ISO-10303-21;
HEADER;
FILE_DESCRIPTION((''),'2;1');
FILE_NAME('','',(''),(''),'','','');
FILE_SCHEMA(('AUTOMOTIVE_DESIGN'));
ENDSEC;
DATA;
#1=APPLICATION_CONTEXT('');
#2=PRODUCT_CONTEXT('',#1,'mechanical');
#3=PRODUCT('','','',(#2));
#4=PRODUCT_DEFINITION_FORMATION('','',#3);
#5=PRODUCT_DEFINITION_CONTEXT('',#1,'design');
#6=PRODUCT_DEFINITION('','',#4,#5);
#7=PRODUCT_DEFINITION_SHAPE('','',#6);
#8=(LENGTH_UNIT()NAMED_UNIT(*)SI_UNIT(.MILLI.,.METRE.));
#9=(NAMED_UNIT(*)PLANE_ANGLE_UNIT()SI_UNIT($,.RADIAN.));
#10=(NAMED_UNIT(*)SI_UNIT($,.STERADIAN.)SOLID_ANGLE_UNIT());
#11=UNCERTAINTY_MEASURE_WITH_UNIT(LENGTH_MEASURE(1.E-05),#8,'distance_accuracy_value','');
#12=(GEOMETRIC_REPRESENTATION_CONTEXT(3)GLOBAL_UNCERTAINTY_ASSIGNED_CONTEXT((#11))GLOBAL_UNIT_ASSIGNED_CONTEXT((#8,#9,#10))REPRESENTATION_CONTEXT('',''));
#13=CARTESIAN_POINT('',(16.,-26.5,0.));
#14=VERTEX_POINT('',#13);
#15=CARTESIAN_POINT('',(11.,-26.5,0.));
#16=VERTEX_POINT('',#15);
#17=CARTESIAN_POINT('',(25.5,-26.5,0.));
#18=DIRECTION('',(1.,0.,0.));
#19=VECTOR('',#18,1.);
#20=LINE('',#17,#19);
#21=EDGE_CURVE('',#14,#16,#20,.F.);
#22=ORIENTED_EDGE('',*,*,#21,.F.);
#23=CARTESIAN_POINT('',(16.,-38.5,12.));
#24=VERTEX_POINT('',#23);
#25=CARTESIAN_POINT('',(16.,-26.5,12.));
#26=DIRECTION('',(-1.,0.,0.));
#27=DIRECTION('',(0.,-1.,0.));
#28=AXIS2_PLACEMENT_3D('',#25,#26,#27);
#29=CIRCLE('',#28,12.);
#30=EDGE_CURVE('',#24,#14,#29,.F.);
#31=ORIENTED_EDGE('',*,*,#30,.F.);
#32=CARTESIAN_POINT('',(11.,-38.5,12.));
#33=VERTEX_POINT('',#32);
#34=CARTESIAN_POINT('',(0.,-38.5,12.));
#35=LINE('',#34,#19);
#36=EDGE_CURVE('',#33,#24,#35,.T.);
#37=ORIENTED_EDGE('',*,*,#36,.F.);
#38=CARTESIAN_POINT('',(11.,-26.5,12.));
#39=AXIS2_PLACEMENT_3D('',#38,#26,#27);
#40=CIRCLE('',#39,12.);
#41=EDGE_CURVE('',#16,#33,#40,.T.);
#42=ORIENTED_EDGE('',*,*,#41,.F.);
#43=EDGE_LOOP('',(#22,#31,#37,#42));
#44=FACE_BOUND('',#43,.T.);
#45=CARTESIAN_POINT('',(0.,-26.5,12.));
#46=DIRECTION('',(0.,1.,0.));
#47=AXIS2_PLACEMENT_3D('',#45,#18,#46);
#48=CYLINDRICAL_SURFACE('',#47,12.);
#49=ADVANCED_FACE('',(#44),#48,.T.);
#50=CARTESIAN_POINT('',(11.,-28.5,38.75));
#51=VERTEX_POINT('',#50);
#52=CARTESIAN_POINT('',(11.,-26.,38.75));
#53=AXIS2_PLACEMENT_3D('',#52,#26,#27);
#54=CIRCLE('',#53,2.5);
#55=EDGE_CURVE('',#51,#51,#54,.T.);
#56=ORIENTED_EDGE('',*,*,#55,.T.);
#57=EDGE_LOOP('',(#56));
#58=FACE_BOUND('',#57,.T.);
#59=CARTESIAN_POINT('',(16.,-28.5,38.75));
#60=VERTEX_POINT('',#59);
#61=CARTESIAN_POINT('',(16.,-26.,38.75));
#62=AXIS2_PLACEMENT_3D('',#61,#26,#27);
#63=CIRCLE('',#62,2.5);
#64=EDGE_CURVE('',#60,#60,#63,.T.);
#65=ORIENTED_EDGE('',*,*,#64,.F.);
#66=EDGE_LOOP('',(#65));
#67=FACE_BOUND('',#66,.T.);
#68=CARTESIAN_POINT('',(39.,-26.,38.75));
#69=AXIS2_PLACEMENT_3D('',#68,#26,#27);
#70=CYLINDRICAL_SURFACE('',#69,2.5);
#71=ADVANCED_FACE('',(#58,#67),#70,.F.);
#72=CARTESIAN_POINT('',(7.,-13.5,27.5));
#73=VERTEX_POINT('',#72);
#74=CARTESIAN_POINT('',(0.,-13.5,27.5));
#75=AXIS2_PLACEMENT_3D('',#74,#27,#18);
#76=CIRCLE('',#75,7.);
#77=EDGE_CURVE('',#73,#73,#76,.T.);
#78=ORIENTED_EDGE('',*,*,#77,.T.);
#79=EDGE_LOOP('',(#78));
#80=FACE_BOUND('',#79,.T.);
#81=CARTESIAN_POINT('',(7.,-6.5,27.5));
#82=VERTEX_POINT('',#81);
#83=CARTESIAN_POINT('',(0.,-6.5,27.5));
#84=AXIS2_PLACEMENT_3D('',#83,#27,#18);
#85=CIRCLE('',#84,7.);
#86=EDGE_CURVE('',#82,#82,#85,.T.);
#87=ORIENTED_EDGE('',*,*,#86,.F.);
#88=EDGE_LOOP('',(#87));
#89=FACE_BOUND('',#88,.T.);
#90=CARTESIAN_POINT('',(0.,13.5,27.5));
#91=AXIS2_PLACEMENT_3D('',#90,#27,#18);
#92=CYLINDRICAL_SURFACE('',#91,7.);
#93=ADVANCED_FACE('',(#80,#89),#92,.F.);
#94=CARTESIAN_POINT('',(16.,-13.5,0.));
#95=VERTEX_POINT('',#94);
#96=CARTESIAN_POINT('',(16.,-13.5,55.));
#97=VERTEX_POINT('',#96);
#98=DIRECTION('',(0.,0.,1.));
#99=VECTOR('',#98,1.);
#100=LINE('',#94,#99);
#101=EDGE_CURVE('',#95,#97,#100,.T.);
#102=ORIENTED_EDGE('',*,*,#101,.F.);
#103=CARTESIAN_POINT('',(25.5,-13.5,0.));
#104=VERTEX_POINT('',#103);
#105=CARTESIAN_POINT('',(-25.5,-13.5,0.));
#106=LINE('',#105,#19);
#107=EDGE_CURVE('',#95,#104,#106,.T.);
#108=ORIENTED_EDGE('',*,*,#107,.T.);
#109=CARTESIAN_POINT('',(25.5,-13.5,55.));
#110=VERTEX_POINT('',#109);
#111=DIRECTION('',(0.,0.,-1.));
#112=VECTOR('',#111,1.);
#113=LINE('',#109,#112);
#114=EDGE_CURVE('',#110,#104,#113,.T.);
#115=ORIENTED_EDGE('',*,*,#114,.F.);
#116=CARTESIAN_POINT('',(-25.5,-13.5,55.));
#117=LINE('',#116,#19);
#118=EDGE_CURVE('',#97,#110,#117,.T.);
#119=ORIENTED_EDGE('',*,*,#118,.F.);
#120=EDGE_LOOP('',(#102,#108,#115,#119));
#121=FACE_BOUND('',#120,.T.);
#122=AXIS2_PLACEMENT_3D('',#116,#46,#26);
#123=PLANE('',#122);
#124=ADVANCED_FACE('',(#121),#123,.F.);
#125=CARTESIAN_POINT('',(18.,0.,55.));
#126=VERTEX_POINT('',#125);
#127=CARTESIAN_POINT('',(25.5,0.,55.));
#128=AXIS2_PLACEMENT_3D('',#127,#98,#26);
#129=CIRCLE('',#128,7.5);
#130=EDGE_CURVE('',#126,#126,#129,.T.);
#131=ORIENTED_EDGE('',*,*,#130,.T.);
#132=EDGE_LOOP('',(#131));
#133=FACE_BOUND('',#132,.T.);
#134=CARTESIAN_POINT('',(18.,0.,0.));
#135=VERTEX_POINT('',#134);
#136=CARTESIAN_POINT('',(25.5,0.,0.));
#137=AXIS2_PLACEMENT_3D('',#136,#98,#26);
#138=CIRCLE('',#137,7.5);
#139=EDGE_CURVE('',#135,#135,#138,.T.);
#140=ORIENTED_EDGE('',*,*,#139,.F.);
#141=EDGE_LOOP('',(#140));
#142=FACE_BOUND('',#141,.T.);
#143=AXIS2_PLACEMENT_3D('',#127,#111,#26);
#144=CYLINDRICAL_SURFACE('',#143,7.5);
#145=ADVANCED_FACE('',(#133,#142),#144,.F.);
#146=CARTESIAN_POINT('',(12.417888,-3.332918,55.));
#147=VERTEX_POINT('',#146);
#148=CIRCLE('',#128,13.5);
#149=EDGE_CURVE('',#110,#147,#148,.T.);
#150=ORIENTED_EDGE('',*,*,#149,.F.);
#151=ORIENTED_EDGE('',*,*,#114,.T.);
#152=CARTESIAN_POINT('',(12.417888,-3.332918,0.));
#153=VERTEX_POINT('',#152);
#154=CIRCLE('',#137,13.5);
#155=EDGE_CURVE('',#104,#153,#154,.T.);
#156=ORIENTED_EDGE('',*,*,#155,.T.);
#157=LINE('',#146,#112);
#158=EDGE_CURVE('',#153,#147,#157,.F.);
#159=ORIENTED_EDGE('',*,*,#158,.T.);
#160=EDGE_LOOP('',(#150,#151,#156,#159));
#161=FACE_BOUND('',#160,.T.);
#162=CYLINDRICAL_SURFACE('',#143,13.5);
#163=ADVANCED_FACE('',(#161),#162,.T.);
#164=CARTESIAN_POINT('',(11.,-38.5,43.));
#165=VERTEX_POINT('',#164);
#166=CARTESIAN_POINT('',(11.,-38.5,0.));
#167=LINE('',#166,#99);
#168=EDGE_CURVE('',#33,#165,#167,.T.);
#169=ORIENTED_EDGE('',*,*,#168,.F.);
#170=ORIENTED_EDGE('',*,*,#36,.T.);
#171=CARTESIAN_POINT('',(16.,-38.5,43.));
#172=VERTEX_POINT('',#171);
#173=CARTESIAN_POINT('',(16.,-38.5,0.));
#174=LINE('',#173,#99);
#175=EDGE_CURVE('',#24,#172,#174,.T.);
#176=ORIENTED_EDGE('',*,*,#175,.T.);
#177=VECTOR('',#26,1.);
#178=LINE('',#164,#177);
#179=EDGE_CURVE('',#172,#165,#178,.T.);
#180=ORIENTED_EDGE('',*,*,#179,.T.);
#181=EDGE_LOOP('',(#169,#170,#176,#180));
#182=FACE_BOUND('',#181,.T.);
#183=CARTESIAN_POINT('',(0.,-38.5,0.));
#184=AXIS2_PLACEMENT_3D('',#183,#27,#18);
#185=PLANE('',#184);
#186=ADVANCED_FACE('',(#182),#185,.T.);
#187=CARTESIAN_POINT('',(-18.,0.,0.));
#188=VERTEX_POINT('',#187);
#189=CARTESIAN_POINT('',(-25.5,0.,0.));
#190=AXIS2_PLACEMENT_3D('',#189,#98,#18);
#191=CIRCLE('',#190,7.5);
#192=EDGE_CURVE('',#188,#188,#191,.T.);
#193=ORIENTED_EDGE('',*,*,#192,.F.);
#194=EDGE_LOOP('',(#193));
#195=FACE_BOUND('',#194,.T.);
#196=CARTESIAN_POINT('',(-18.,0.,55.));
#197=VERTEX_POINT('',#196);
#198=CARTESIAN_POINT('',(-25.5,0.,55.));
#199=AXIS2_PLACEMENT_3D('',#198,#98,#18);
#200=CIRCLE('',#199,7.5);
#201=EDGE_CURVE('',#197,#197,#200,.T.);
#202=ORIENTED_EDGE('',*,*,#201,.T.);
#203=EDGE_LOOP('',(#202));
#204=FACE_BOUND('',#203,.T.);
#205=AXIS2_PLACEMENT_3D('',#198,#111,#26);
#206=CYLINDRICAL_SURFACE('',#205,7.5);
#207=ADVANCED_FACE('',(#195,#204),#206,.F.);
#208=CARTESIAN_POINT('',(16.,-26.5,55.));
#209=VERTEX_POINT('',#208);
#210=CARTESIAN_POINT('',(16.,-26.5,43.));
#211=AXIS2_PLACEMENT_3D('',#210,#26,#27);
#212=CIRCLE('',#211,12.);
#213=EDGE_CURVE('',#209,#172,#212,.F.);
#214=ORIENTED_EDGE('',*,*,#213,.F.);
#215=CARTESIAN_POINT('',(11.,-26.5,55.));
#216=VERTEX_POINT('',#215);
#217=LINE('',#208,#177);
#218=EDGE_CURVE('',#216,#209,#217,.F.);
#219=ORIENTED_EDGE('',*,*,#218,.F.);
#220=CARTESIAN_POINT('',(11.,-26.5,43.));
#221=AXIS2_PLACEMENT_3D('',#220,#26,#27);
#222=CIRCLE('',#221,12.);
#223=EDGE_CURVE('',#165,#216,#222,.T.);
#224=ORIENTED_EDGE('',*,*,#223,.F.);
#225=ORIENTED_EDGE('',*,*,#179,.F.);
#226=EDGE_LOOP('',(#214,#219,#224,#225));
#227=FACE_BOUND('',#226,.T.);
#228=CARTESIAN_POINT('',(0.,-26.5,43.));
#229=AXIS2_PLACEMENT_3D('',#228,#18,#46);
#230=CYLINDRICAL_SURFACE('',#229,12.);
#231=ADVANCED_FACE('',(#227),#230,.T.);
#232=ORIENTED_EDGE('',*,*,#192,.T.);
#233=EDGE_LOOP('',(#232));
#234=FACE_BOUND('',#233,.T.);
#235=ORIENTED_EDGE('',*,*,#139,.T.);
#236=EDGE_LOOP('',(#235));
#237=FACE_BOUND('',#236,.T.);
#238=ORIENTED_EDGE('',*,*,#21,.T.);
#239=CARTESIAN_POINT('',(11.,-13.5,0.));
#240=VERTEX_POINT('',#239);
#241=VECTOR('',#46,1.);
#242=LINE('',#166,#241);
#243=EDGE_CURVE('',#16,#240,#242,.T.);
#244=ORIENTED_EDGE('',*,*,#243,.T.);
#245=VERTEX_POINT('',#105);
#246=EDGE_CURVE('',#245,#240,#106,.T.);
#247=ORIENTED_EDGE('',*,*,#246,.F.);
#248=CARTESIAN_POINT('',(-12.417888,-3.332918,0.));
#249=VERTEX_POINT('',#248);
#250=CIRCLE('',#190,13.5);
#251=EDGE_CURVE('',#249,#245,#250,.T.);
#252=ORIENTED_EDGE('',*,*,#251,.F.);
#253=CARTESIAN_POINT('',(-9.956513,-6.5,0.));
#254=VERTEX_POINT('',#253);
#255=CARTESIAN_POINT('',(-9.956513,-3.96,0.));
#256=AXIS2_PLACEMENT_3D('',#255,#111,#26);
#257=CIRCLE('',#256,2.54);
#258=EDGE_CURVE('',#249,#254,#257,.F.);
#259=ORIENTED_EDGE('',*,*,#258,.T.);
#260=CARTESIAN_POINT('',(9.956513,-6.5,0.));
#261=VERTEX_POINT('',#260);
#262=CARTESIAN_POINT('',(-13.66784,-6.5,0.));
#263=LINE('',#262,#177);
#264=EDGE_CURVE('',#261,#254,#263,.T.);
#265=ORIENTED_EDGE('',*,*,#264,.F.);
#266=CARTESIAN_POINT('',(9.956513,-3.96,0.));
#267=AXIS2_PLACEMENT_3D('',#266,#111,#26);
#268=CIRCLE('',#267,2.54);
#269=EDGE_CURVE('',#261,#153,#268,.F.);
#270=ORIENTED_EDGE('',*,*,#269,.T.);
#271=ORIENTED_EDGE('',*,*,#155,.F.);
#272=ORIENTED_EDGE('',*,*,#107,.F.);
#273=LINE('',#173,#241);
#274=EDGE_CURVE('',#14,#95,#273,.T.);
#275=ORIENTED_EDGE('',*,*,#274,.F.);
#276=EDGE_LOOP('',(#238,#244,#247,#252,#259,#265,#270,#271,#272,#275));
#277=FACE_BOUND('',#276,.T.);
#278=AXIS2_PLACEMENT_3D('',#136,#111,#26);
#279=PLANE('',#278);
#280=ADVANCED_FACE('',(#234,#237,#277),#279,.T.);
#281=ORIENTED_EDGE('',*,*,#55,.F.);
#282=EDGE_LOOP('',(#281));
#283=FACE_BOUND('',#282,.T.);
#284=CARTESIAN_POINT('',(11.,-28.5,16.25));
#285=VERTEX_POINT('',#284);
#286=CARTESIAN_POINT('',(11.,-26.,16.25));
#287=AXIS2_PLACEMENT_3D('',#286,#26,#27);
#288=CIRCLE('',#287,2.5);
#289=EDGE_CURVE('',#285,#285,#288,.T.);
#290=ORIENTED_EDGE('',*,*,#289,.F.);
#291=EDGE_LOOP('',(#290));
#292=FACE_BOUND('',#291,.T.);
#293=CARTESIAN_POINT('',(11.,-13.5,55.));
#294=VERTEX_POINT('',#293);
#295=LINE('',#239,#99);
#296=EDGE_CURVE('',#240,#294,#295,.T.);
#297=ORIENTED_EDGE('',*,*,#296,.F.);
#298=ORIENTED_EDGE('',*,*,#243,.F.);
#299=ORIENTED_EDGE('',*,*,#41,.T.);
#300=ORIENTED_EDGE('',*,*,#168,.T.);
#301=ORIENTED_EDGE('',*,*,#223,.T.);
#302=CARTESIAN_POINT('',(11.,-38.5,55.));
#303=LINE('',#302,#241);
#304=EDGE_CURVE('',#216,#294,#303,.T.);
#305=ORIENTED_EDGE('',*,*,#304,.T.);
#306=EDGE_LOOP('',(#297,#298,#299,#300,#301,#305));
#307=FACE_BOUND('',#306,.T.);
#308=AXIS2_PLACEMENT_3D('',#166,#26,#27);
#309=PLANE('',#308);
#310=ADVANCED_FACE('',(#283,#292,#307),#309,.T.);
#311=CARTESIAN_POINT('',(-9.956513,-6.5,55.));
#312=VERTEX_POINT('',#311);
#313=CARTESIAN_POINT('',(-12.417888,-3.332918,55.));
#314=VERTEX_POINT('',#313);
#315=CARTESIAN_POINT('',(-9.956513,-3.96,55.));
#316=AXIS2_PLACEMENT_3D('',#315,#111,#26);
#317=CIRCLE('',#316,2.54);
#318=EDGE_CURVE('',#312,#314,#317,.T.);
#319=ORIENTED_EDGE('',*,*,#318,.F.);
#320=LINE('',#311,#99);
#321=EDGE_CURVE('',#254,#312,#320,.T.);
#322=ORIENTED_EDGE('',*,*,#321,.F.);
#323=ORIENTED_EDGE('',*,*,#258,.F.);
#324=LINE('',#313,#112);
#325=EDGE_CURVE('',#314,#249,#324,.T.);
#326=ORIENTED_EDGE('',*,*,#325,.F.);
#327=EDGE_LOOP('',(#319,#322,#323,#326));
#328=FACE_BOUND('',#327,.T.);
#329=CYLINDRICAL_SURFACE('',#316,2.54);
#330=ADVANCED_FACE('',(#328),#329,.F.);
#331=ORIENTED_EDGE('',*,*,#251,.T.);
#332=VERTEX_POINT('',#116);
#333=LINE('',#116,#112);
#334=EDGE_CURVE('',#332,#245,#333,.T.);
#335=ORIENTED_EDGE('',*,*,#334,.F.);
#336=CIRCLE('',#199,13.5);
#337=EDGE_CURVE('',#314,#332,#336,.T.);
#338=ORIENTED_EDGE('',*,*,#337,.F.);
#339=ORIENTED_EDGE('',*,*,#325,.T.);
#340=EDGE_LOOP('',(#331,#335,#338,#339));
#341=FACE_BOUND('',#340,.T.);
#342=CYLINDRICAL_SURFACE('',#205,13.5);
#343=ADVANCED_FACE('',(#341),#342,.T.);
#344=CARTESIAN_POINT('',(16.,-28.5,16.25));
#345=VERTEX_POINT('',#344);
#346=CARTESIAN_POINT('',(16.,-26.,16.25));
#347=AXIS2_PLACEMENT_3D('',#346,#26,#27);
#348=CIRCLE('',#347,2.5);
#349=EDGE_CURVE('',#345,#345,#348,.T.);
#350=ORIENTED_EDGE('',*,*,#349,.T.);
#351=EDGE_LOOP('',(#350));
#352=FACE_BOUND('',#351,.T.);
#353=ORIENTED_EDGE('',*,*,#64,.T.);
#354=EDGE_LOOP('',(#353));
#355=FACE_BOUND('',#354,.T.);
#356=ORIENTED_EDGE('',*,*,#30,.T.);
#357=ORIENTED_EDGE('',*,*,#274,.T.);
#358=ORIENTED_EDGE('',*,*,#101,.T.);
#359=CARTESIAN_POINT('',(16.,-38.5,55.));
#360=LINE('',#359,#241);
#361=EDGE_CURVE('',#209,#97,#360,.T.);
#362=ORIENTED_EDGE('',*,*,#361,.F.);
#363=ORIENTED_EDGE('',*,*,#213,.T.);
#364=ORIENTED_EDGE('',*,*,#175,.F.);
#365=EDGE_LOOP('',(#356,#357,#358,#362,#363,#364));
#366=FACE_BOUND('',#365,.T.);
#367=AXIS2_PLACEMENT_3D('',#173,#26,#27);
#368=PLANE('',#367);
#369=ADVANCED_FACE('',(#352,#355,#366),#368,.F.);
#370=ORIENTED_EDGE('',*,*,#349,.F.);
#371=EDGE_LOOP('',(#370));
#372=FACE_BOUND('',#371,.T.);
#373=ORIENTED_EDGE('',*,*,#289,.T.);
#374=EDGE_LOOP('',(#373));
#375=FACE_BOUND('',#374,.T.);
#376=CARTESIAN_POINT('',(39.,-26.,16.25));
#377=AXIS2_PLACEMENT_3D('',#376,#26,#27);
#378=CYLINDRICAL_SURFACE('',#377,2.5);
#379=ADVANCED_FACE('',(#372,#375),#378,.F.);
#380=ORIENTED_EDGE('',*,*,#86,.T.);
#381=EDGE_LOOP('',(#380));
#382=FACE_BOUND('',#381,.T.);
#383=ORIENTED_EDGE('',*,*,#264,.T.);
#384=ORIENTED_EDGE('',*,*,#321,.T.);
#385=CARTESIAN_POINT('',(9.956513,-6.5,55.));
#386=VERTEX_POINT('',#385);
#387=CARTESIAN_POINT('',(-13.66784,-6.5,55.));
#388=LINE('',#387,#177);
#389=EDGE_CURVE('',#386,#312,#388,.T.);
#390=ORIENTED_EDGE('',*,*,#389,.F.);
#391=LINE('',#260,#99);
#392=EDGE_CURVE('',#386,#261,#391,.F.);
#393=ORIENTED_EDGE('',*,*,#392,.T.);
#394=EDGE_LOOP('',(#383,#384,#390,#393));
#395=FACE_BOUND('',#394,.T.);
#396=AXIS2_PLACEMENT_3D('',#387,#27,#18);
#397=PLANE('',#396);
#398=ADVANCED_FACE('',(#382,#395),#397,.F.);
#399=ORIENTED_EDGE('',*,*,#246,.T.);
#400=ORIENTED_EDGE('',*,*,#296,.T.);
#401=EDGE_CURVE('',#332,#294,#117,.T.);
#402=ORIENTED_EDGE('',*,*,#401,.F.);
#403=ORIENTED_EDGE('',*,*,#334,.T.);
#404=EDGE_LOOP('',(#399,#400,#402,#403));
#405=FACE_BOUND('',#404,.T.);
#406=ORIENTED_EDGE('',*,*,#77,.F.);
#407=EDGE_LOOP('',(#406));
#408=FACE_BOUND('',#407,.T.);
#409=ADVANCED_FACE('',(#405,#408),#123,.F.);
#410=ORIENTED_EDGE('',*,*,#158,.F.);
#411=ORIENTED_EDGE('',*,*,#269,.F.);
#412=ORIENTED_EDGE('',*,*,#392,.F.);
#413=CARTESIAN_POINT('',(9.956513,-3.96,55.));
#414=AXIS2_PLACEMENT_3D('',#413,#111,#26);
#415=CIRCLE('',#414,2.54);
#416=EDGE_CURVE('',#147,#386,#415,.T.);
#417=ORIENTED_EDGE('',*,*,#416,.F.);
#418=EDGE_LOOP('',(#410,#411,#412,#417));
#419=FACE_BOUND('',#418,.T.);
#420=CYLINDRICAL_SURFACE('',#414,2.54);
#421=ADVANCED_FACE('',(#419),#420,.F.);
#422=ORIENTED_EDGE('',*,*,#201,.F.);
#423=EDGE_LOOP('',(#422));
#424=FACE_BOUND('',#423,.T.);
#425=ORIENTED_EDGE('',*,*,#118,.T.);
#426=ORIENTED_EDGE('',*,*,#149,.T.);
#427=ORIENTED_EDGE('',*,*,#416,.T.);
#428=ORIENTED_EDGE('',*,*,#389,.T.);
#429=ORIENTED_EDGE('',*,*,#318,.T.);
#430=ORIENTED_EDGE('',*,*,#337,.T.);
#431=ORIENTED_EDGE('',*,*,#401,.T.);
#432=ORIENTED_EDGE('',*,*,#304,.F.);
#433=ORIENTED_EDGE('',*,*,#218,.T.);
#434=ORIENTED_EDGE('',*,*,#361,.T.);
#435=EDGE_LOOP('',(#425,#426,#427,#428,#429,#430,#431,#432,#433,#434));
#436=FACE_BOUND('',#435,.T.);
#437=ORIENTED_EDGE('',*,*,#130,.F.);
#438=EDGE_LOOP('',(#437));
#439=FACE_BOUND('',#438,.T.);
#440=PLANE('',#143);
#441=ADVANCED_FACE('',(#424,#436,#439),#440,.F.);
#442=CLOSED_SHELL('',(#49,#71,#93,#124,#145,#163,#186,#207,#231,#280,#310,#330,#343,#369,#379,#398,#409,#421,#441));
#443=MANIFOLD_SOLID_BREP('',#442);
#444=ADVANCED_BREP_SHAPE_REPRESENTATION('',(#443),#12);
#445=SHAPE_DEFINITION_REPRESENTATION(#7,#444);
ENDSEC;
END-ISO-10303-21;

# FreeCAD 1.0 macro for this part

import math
import FreeCAD as App
import Part
import Sketcher


def edges_at(feature, points):
    """Names of the edges that pass closest to the given points."""
    edges = feature.Shape.Edges
    near = lambda p: min(range(len(edges)), key=lambda i: edges[i].distToShape(Part.Vertex(*p))[0])
    return sorted({f"Edge{near(p) + 1}" for p in points})


def add_polygon(sketch, points):
    """Adds a closed chain of lines whose ends are joined by coincident constraints."""
    first, n = sketch.GeometryCount, len(points)
    for a, b in zip(points, points[1:] + points[:1]):
        sketch.addGeometry(Part.LineSegment(App.Vector(*a, 0), App.Vector(*b, 0)), False)
    for i in range(n):
        sketch.addConstraint(Sketcher.Constraint("Coincident", first + i, 2, first + (i + 1) % n, 1))

doc = App.newDocument("Part")
body = doc.addObject("PartDesign::Body", "Body")

# Sketch on XY plane
sketch1 = body.newObject("Sketcher::SketchObject", "Sketch")
sketch1.AttachmentSupport = (doc.getObject("XY_Plane"), [""])
sketch1.MapMode = "FlatFace"
sketch1.addGeometry([
    Part.LineSegment(App.Vector(14, -6, 0), App.Vector(-14, -6, 0)),  # 0
    Part.ArcOfCircle(Part.Circle(App.Vector(-26, 0, 0), App.Vector(0, 0, 1), 14), math.radians(-29), math.radians(270)),  # 1
    Part.LineSegment(App.Vector(-26, -14, 0), App.Vector(26, -14, 0)),  # 2
    Part.ArcOfCircle(Part.Circle(App.Vector(26, 0, 0), App.Vector(0, 0, 1), 14), math.radians(-90), math.radians(209)),  # 3
    Part.Circle(App.Vector(26, 0, 0), App.Vector(0, 0, 1), 8),  # 4
    Part.Circle(App.Vector(-26, 0, 0), App.Vector(0, 0, 1), 8),  # 5
], False)
sketch1.addConstraint([
    Sketcher.Constraint("Coincident", 0, 2, 1, 1),
    Sketcher.Constraint("Tangent", 1, 2, 2, 1),
    Sketcher.Constraint("Tangent", 2, 2, 3, 1),
    Sketcher.Constraint("Coincident", 3, 2, 0, 1),
    Sketcher.Constraint("Horizontal", 0),
    Sketcher.Constraint("Horizontal", 2),
    Sketcher.Constraint("Coincident", 4, 3, 3, 3),
    Sketcher.Constraint("Coincident", 5, 3, 1, 3),
    Sketcher.Constraint("Equal", 1, 3),
    Sketcher.Constraint("Equal", 4, 5),
    Sketcher.Constraint("Symmetric", 1, 3, 3, 3, -1, 1),
    Sketcher.Constraint("Diameter", 4, 15.0),
    Sketcher.Constraint("Radius", 1, 13.5),
    Sketcher.Constraint("DistanceX", 2, 1, 2, 2, 51.0),
    Sketcher.Constraint("DistanceY", 1, 2, 0, 2, 7.0),
])
pad1 = body.newObject("PartDesign::Pad", "Pad")
pad1.Profile = sketch1
pad1.Length = 55
doc.recompute()

fillet = body.newObject("PartDesign::Fillet", "Fillet")
fillet.Base = (pad1, edges_at(pad1, [(-13.668, -6.5, 27.5), (13.668, -6.5, 27.5)]))
fillet.Radius = 2.54

# Sketch on XZ plane
sketch2 = body.newObject("Sketcher::SketchObject", "Sketch001")
sketch2.AttachmentSupport = (doc.getObject("XZ_Plane"), [""])
sketch2.MapMode = "FlatFace"
sketch2.AttachmentOffset = App.Placement(App.Vector(0, 0, 13.5), App.Rotation())
add_polygon(sketch2, [(16, 55), (11, 55), (11, 0), (16, 0)])  # lines 0-3
sketch2.addConstraint([
    Sketcher.Constraint("Horizontal", 0),
    Sketcher.Constraint("Vertical", 1),
    Sketcher.Constraint("Horizontal", 2),
    Sketcher.Constraint("Vertical", 3),
    Sketcher.Constraint("PointOnObject", 1, 2, -1),
    Sketcher.Constraint("DistanceX", 0, 2, 0, 1, 5.0),
    Sketcher.Constraint("DistanceY", 1, 2, 1, 1, 55.0),
    Sketcher.Constraint("DistanceX", -1, 1, 0, 2, 11.0),
])
pad2 = body.newObject("PartDesign::Pad", "Pad001")
pad2.Profile = sketch2
pad2.Length = 25

# Sketch on XZ plane
sketch3 = body.newObject("Sketcher::SketchObject", "Sketch002")
sketch3.AttachmentSupport = (doc.getObject("XZ_Plane"), [""])
sketch3.MapMode = "FlatFace"
sketch3.AttachmentOffset = App.Placement(App.Vector(0, 0, 13.5), App.Rotation())
sketch3.addGeometry(Part.Circle(App.Vector(0, 28, 0), App.Vector(0, 0, 1), 7), False)
sketch3.addConstraint([
    Sketcher.Constraint("PointOnObject", 0, 3, -2),
    Sketcher.Constraint("Diameter", 0, 14.0),
    Sketcher.Constraint("DistanceY", -1, 1, 0, 3, 27.5),
])
pocket1 = body.newObject("PartDesign::Pocket", "Pocket")
pocket1.Profile = sketch3
pocket1.Type = "ThroughAll"
doc.recompute()

fillet2 = body.newObject("PartDesign::Fillet", "Fillet001")
fillet2.Base = (pocket1, edges_at(pocket1, [(13.5, -38.5, 0), (13.5, -38.5, 55)]))
fillet2.Radius = 12

# Sketch on YZ plane
sketch4 = body.newObject("Sketcher::SketchObject", "Sketch003")
sketch4.AttachmentSupport = (doc.getObject("YZ_Plane"), [""])
sketch4.MapMode = "FlatFace"
sketch4.AttachmentOffset = App.Placement(App.Vector(0, 0, 11), App.Rotation())
sketch4.addGeometry([
    Part.Circle(App.Vector(-26, 16.2, 0), App.Vector(0, 0, 1), 2.5),
    Part.Circle(App.Vector(-26, 38.8, 0), App.Vector(0, 0, 1), 2.5),
], False)
sketch4.addConstraint([
    Sketcher.Constraint("Equal", 0, 1),
    Sketcher.Constraint("Vertical", 0, 3, 1, 3),
    Sketcher.Constraint("Diameter", 0, 5.0),
    Sketcher.Constraint("DistanceX", 0, 3, -1, 1, 26.0),
    Sketcher.Constraint("DistanceY", 0, 3, 1, 3, 22.5),
    Sketcher.Constraint("DistanceY", -1, 1, 0, 3, 16.25),
])
pocket2 = body.newObject("PartDesign::Pocket", "Pocket001")
pocket2.Profile = sketch4
pocket2.Type = "ThroughAll"
pocket2.Reversed = True

doc.recompute()
